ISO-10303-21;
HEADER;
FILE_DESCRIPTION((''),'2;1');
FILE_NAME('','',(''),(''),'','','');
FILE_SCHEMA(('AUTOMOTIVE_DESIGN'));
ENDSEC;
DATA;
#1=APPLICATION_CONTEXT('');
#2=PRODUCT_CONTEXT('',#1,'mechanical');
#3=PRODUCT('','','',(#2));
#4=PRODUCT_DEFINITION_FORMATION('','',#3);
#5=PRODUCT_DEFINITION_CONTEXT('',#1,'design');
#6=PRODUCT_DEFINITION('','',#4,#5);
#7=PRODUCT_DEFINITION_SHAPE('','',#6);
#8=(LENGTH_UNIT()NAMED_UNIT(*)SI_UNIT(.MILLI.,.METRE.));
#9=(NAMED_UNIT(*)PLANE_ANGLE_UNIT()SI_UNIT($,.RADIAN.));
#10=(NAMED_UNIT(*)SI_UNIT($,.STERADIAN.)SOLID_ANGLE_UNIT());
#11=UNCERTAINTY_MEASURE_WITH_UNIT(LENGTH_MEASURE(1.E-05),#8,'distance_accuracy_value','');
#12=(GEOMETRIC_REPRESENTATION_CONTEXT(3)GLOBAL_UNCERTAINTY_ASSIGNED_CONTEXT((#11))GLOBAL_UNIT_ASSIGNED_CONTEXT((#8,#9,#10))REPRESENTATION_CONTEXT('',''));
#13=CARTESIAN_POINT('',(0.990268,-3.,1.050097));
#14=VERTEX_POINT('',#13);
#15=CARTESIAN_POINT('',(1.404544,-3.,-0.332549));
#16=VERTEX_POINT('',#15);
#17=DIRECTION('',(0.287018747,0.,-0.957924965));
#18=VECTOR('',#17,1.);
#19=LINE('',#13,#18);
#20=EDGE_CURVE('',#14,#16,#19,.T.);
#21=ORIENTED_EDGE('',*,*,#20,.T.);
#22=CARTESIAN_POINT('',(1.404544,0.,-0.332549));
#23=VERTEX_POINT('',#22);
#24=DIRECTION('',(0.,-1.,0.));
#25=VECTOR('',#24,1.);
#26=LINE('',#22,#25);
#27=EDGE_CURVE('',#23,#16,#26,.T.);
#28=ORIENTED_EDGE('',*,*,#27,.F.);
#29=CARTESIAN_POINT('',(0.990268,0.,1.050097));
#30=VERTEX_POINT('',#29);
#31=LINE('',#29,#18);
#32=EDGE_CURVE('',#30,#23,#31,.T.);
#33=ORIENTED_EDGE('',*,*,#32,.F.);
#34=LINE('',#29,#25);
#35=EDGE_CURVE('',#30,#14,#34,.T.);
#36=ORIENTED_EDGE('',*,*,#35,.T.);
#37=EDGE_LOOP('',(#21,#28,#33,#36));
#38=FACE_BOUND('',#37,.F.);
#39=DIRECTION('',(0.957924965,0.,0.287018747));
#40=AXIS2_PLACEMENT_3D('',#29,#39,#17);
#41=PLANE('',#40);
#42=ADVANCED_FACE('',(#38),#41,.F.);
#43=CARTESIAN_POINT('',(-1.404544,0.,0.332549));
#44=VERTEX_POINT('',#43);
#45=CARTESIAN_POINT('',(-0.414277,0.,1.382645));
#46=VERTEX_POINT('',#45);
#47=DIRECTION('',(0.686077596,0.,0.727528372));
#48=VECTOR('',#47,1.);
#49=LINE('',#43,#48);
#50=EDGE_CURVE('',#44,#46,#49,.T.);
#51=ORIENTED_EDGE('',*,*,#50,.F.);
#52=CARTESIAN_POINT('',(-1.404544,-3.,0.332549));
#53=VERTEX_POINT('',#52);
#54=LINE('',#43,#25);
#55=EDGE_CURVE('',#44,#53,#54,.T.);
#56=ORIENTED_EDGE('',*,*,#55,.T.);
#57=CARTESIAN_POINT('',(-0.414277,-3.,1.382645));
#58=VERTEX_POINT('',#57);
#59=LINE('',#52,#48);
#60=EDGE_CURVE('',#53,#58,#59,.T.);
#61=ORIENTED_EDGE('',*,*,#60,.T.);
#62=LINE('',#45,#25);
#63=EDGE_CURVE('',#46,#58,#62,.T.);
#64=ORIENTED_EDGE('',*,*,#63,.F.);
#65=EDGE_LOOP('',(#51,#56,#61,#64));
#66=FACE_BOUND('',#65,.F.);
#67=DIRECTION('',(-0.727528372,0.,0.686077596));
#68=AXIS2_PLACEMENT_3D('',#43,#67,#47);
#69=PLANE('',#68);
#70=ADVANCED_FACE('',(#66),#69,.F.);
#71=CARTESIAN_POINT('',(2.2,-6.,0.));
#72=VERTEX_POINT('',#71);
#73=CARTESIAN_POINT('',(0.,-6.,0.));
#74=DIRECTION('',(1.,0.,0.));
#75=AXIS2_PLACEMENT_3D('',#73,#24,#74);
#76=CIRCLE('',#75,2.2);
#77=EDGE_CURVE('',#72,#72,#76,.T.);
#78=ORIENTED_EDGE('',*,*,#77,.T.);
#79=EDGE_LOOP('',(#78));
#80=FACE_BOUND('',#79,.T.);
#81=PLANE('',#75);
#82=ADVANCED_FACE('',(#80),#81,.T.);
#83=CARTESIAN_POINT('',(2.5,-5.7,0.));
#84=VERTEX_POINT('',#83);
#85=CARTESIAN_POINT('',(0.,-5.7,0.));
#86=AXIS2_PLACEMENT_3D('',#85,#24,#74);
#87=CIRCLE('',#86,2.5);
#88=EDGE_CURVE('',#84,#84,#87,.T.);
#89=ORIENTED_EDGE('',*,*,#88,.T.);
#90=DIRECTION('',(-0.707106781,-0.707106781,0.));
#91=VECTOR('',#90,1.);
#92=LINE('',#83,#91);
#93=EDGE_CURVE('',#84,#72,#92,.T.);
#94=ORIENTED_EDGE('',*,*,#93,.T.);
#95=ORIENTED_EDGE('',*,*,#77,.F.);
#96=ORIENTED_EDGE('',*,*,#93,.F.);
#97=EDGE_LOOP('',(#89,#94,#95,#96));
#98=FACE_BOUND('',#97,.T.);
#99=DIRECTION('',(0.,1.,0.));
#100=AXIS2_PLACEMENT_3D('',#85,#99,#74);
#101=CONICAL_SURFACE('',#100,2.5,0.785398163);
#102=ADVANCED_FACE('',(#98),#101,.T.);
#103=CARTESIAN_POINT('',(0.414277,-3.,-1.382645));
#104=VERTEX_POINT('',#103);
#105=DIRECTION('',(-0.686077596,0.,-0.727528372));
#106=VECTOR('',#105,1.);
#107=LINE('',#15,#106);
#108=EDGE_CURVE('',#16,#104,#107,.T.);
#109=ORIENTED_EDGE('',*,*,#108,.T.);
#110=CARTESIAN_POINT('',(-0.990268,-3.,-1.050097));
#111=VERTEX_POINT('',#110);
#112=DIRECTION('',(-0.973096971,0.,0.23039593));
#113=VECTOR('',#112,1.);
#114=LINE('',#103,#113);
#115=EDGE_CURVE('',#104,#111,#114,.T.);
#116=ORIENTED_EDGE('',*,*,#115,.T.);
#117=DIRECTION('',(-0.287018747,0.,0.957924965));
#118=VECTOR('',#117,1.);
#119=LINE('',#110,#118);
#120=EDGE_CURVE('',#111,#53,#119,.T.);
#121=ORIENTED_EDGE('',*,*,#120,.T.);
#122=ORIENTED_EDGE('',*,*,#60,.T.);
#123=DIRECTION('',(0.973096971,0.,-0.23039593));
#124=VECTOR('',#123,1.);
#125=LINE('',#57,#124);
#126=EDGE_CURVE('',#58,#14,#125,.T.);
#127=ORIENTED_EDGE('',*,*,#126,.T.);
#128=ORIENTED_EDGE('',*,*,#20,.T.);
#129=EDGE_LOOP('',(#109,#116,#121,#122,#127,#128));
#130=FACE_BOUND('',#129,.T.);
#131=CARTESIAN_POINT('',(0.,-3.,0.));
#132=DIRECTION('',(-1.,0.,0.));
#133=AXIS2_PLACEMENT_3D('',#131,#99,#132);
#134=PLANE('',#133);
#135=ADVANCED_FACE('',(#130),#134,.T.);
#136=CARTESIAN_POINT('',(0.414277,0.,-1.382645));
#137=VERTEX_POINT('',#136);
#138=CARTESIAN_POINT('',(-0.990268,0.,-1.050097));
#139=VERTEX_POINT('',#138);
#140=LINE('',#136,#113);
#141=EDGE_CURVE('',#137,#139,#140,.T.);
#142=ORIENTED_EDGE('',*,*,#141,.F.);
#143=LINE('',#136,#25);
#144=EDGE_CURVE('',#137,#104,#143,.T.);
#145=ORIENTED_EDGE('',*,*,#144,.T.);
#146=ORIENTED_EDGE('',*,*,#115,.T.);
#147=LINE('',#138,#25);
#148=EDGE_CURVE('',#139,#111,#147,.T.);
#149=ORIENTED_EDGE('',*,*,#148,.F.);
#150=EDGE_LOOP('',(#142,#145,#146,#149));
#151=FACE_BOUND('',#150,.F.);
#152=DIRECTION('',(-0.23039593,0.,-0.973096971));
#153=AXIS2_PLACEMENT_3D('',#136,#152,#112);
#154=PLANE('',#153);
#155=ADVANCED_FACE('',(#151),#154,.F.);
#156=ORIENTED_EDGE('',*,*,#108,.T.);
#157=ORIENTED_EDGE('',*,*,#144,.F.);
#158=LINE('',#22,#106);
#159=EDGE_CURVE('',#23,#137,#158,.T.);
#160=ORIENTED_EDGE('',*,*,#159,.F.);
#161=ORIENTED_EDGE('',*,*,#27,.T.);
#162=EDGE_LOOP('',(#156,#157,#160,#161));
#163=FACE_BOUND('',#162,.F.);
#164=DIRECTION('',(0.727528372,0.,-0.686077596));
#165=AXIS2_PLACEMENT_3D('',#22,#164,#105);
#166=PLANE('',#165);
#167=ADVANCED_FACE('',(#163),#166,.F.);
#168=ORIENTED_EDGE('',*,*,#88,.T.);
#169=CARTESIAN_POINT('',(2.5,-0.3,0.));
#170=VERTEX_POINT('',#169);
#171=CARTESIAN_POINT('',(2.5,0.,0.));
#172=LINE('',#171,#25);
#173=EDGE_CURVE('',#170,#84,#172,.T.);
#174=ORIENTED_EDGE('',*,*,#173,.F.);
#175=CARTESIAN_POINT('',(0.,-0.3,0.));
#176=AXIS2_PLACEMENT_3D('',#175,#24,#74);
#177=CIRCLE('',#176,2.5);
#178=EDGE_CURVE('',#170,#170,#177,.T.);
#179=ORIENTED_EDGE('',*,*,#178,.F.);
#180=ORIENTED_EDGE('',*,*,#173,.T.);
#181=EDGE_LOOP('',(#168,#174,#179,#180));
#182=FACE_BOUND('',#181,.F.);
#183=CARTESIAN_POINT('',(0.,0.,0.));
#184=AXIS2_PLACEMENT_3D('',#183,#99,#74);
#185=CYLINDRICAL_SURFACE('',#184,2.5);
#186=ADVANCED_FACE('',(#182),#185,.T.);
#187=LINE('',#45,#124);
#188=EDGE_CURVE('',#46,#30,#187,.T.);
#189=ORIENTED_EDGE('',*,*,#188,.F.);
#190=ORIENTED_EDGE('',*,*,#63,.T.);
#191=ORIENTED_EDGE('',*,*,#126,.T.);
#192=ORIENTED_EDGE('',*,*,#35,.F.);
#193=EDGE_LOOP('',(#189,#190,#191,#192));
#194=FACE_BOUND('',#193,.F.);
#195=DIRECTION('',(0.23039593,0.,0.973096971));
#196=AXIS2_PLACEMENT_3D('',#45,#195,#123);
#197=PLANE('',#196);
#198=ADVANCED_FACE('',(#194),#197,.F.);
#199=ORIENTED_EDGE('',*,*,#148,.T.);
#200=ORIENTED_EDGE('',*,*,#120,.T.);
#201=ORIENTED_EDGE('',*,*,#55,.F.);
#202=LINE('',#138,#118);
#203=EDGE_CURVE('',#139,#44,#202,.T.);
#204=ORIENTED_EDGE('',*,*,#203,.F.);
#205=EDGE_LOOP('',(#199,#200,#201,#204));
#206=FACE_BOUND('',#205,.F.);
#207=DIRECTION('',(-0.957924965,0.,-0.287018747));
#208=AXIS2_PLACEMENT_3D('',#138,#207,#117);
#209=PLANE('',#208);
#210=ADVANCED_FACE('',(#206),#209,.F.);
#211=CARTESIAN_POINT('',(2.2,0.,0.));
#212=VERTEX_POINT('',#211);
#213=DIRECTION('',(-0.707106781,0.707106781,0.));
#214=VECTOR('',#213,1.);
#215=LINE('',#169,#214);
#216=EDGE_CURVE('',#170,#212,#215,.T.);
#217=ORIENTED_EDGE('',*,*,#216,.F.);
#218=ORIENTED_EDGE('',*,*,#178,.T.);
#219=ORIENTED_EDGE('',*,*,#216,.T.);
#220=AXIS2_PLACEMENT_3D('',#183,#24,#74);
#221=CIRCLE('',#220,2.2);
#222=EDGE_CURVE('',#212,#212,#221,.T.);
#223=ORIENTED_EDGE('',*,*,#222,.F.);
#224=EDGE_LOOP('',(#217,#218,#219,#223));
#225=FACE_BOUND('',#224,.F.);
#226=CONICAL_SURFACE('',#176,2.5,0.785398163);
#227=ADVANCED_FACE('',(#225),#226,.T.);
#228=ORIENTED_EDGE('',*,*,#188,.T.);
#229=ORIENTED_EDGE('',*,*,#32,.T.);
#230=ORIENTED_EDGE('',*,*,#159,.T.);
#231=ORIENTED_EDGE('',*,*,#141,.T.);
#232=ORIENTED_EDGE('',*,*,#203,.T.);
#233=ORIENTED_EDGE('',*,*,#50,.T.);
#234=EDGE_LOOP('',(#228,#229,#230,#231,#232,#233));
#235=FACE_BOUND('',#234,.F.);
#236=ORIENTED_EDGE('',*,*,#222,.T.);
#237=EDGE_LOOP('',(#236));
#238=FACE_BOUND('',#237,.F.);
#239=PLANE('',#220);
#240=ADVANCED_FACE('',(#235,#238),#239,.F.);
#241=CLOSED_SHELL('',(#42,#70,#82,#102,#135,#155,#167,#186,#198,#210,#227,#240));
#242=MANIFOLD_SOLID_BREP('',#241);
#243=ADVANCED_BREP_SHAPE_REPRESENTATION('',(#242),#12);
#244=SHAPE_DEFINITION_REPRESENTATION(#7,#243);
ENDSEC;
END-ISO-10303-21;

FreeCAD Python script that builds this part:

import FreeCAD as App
import Part
import Sketcher

V = App.Vector


def edges_at(feature, points):
    """Names of the edges that pass closest to the given points."""
    edges = feature.Shape.Edges
    near = lambda p: min(range(len(edges)), key=lambda i: edges[i].distToShape(Part.Vertex(*p))[0])
    return sorted({f"Edge{near(p) + 1}" for p in points})

doc = App.newDocument("Part")
body = doc.addObject("PartDesign::Body", "Body")

# Sketch on XZ plane
sketch1 = body.newObject("Sketcher::SketchObject", "Sketch")
sketch1.AttachmentSupport = (doc.getObject("XZ_Plane"), [""])
sketch1.MapMode = "FlatFace"
sketch1.addGeometry(Part.Circle(V(0, 0, 0), V(0, 0, 1), 2.5), False)
sketch1.addConstraint([
    Sketcher.Constraint("Coincident", 0, 3, -1, 1),
    Sketcher.Constraint("Diameter", 0, 5.0),
])
pad1 = body.newObject("PartDesign::Pad", "Pad")
pad1.Profile = sketch1
pad1.Length = 6
doc.recompute()

chamfer = body.newObject("PartDesign::Chamfer", "Chamfer")
chamfer.Base = (pad1, edges_at(pad1, [(-2.5, -6, 0), (-2.5, 0, 0)]))
chamfer.Size = 0.3

# Sketch on XZ plane
sketch2 = body.newObject("Sketcher::SketchObject", "Sketch001")
sketch2.AttachmentSupport = (doc.getObject("XZ_Plane"), [""])
sketch2.MapMode = "FlatFace"
sketch2.addGeometry([
    Part.LineSegment(V(-0.4, 1.4, 0), V(1, 1.1, 0)),  # 0
    Part.LineSegment(V(1, 1.1, 0), V(1.4, -0.3, 0)),  # 1
    Part.LineSegment(V(1.4, -0.3, 0), V(0.4, -1.4, 0)),  # 2
    Part.LineSegment(V(0.4, -1.4, 0), V(-1, -1.1, 0)),  # 3
    Part.LineSegment(V(-1, -1.1, 0), V(-1.4, 0.3, 0)),  # 4
    Part.LineSegment(V(-1.4, 0.3, 0), V(-0.4, 1.4, 0)),  # 5
], False)
sketch2.addConstraint([
    Sketcher.Constraint("Coincident", 0, 2, 1, 1),
    Sketcher.Constraint("Coincident", 1, 2, 2, 1),
    Sketcher.Constraint("Coincident", 2, 2, 3, 1),
    Sketcher.Constraint("Coincident", 3, 2, 4, 1),
    Sketcher.Constraint("Coincident", 4, 2, 5, 1),
    Sketcher.Constraint("Coincident", 5, 2, 0, 1),
    Sketcher.Constraint("Symmetric", 0, 2, 3, 2, -1, 1),
    Sketcher.Constraint("Symmetric", 1, 2, 4, 2, -1, 1),
    Sketcher.Constraint("Symmetric", 2, 2, 5, 2, -1, 1),
    Sketcher.Constraint("Equal", 0, 1),
    Sketcher.Constraint("Equal", 1, 2),
    Sketcher.Constraint("DistanceX", -1, 1, 0, 2, 0.990268),
    Sketcher.Constraint("DistanceY", 1, 2, -1, 1, 0.332549),
    Sketcher.Constraint("DistanceX", 2, 2, 0, 2, 0.575991),
    Sketcher.Constraint("DistanceX", 3, 2, 1, 2, 2.394812),
])
pocket1 = body.newObject("PartDesign::Pocket", "Pocket")
pocket1.Profile = sketch2
pocket1.Length = 3
pocket1.Reversed = True

doc.recompute()
